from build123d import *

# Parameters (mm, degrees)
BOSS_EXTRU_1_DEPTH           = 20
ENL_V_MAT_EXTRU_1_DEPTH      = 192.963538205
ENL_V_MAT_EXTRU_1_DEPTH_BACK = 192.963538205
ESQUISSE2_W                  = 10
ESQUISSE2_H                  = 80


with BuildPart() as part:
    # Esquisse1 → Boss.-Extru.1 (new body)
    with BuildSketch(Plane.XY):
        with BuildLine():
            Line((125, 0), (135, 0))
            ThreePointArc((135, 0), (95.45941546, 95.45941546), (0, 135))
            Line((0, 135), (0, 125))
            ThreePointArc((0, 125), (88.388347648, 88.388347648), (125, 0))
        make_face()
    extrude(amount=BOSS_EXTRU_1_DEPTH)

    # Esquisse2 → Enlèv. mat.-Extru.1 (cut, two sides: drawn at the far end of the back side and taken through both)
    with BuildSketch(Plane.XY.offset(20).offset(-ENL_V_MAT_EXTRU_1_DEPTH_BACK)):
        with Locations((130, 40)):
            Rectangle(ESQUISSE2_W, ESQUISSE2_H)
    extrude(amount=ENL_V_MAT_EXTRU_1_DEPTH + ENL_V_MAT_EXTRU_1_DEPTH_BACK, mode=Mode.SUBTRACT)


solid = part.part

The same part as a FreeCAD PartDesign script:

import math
import FreeCAD as App
import Part
import Sketcher

V = App.Vector

doc = App.newDocument("Part")
body = doc.addObject("PartDesign::Body", "Body")

sketch1 = body.newObject("Sketcher::SketchObject", "Sketch")
sketch1.AttachmentSupport = (doc.getObject("XY_Plane"), [""])
sketch1.MapMode = "FlatFace"
sketch1.addGeometry([
    Part.LineSegment(V(125, 0, 0), V(135, 0, 0)),
    Part.ArcOfCircle(Part.Circle(V(0, 0, 0), V(0, 0, 1), 135), math.radians(0), math.radians(90)),
    Part.LineSegment(V(0, 135, 0), V(0, 125, 0)),
    Part.ArcOfCircle(Part.Circle(V(0, 0, 0), V(0, 0, 1), 125), math.radians(0), math.radians(90)),
], False)
sketch1.addConstraint([
    Sketcher.Constraint("Coincident", 0, 2, 1, 1),
    Sketcher.Constraint("Coincident", 1, 2, 2, 1),
    Sketcher.Constraint("Coincident", 2, 2, 3, 2),
    Sketcher.Constraint("Coincident", 3, 1, 0, 1),
    Sketcher.Constraint("Horizontal", 0),
    Sketcher.Constraint("Vertical", 2),
    Sketcher.Constraint("Coincident", 1, 3, -1, 1),
    Sketcher.Constraint("Coincident", 3, 3, -1, 1),
    Sketcher.Constraint("PointOnObject", 0, 2, -1),
    Sketcher.Constraint("PointOnObject", 1, 2, -2),
    Sketcher.Constraint("Radius", 1, 135.0),
    Sketcher.Constraint("Radius", 3, 125.0),
])
pad1 = body.newObject("PartDesign::Pad", "Pad")
pad1.Profile = sketch1
pad1.Length = 20

sketch2 = body.newObject("Sketcher::SketchObject", "Sketch001")
sketch2.AttachmentSupport = (doc.getObject("XY_Plane"), [""])
sketch2.MapMode = "FlatFace"
sketch2.AttachmentOffset = App.Placement(V(0, 0, 20), App.Rotation())
sketch2.addGeometry([
    Part.LineSegment(V(125, 80, 0), V(125, 0, 0)),
    Part.LineSegment(V(125, 0, 0), V(135, 0, 0)),
    Part.LineSegment(V(135, 0, 0), V(135, 80, 0)),
    Part.LineSegment(V(135, 80, 0), V(125, 80, 0)),
], False)
sketch2.addConstraint([
    Sketcher.Constraint("Coincident", 0, 2, 1, 1),
    Sketcher.Constraint("Coincident", 1, 2, 2, 1),
    Sketcher.Constraint("Coincident", 2, 2, 3, 1),
    Sketcher.Constraint("Coincident", 3, 2, 0, 1),
    Sketcher.Constraint("Vertical", 0),
    Sketcher.Constraint("Horizontal", 1),
    Sketcher.Constraint("Vertical", 2),
    Sketcher.Constraint("Horizontal", 3),
    Sketcher.Constraint("PointOnObject", 0, 2, -1),
    Sketcher.Constraint("DistanceX", 1, 1, 1, 2, 10.0),
    Sketcher.Constraint("DistanceY", 0, 2, 0, 1, 80.0),
    Sketcher.Constraint("DistanceX", -1, 1, 0, 2, 125.0),
])
pocket1 = body.newObject("PartDesign::Pocket", "Pocket")
pocket1.Profile = sketch2
pocket1.Type = "ThroughAll"
pocket1.Midplane = True

doc.recompute()
